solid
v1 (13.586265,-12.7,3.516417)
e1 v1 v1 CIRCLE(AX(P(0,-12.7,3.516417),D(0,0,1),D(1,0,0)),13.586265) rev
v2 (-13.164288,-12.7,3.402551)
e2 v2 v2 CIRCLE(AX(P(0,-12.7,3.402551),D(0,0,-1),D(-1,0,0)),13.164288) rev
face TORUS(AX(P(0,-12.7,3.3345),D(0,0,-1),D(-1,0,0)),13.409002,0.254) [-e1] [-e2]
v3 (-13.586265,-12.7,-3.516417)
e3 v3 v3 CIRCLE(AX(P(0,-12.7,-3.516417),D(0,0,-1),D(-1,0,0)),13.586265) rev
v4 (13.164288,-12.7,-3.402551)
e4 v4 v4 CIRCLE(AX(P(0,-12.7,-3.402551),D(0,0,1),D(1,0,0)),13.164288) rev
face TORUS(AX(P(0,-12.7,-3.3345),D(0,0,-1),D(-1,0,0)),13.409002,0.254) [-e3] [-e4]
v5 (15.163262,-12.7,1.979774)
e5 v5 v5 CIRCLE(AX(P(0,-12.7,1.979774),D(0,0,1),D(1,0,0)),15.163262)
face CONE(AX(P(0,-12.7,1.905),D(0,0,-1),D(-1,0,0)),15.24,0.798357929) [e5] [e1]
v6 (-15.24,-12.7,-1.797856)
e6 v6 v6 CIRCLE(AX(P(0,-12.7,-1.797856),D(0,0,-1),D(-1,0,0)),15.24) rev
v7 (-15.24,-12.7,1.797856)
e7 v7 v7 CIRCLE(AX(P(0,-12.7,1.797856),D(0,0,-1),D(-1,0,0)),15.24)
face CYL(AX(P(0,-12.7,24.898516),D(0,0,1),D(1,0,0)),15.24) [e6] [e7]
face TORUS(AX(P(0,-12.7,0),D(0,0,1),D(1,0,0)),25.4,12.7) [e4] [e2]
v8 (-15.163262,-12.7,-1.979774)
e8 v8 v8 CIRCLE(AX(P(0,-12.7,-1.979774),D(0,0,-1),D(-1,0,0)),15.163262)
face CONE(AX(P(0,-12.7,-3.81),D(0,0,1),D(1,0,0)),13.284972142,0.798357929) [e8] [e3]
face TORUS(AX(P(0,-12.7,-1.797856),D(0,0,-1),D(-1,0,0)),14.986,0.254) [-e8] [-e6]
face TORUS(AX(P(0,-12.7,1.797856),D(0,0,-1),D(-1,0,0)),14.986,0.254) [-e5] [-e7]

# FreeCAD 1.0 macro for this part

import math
import FreeCAD as App
import Part
import Sketcher

V = App.Vector
Q = App.Units.Quantity


def edges_at(feature, points):
    """Names of the edges that pass closest to the given points."""
    edges = feature.Shape.Edges
    near = lambda p: min(range(len(edges)), key=lambda i: edges[i].distToShape(Part.Vertex(*p))[0])
    return sorted({f"Edge{near(p) + 1}" for p in points})

doc = App.newDocument("Part")
body = doc.addObject("PartDesign::Body", "Body")

# Sketch on YZ plane
sketch1 = body.newObject("Sketcher::SketchObject", "Sketch")
sketch1.AttachmentSupport = (doc.getObject("YZ_Plane"), [""])
sketch1.MapMode = "FlatFace"
sketch1.addGeometry(Part.LineSegment(V(2.5, 1.9, 0), V(0.6, 3.8, 0)), False)
sketch1.addGeometry(Part.ArcOfCircle(Part.Circle(V(12.7, 0, 0), V(0, 0, 1), 12.7), math.radians(163), math.radians(197)), False)
sketch1.addGeometry(Part.LineSegment(V(0.6, -3.8, 0), V(2.5, -1.9, 0)), False)
sketch1.addGeometry(Part.LineSegment(V(2.5, -1.9, 0), V(2.5, 1.9, 0)), False)
sketch1.addGeometry(Part.LineSegment(V(-12.7, 3.8, 0), V(-12.7, -3.8, 0)), True)  # axis
sketch1.addConstraint(Sketcher.Constraint("Coincident", 0, 2, 1, 1))
sketch1.addConstraint(Sketcher.Constraint("Coincident", 1, 2, 2, 1))
sketch1.addConstraint(Sketcher.Constraint("Coincident", 2, 2, 3, 1))
sketch1.addConstraint(Sketcher.Constraint("Coincident", 3, 2, 0, 1))
sketch1.addConstraint(Sketcher.Constraint("Vertical", 3))
sketch1.addConstraint(Sketcher.Constraint("Vertical", 4))
sketch1.addConstraint(Sketcher.Constraint("Symmetric", 0, 2, 1, 2, -1))
sketch1.addConstraint(Sketcher.Constraint("Horizontal", 0, 2, 4, 1))
sketch1.addConstraint(Sketcher.Constraint("Horizontal", 1, 2, 4, 2))
sketch1.addConstraint(Sketcher.Constraint("Equal", 0, 2))
sketch1.addConstraint(Sketcher.Constraint("Radius", 1, Q("0.5 in")))
sketch1.addConstraint(Sketcher.Constraint("DistanceY", 4, 2, 4, 1, Q("0.3 in")))
sketch1.addConstraint(Sketcher.Constraint("DistanceX", 4, 1, 1, 3, Q("1 in")))
sketch1.addConstraint(Sketcher.Constraint("DistanceY", 3, 1, 3, 2, Q("0.15 in")))
sketch1.addConstraint(Sketcher.Constraint("DistanceX", -1, 1, 1, 3, Q("0.5 in")))
sketch1.addConstraint(Sketcher.Constraint("DistanceX", -1, 1, 2, 2, Q("0.1 in")))
revolution = body.newObject("PartDesign::Revolution", "Revolution")
revolution.Profile = sketch1
revolution.ReferenceAxis = (sketch1, ["Axis0"])
revolution.Angle = 360
doc.recompute()

fillet = body.newObject("PartDesign::Fillet", "Fillet")
fillet.Base = (revolution, edges_at(revolution, [(-13.285, -12.7, 3.81), (-13.285, -12.7, -3.81)]))
fillet.Radius = Q("0.01 in")
doc.recompute()

fillet2 = body.newObject("PartDesign::Fillet", "Fillet001")
fillet2.Base = (fillet, edges_at(fillet, [(-15.24, -12.7, 1.905), (-15.24, -12.7, -1.905)]))
fillet2.Radius = Q("0.01 in")

doc.recompute()
